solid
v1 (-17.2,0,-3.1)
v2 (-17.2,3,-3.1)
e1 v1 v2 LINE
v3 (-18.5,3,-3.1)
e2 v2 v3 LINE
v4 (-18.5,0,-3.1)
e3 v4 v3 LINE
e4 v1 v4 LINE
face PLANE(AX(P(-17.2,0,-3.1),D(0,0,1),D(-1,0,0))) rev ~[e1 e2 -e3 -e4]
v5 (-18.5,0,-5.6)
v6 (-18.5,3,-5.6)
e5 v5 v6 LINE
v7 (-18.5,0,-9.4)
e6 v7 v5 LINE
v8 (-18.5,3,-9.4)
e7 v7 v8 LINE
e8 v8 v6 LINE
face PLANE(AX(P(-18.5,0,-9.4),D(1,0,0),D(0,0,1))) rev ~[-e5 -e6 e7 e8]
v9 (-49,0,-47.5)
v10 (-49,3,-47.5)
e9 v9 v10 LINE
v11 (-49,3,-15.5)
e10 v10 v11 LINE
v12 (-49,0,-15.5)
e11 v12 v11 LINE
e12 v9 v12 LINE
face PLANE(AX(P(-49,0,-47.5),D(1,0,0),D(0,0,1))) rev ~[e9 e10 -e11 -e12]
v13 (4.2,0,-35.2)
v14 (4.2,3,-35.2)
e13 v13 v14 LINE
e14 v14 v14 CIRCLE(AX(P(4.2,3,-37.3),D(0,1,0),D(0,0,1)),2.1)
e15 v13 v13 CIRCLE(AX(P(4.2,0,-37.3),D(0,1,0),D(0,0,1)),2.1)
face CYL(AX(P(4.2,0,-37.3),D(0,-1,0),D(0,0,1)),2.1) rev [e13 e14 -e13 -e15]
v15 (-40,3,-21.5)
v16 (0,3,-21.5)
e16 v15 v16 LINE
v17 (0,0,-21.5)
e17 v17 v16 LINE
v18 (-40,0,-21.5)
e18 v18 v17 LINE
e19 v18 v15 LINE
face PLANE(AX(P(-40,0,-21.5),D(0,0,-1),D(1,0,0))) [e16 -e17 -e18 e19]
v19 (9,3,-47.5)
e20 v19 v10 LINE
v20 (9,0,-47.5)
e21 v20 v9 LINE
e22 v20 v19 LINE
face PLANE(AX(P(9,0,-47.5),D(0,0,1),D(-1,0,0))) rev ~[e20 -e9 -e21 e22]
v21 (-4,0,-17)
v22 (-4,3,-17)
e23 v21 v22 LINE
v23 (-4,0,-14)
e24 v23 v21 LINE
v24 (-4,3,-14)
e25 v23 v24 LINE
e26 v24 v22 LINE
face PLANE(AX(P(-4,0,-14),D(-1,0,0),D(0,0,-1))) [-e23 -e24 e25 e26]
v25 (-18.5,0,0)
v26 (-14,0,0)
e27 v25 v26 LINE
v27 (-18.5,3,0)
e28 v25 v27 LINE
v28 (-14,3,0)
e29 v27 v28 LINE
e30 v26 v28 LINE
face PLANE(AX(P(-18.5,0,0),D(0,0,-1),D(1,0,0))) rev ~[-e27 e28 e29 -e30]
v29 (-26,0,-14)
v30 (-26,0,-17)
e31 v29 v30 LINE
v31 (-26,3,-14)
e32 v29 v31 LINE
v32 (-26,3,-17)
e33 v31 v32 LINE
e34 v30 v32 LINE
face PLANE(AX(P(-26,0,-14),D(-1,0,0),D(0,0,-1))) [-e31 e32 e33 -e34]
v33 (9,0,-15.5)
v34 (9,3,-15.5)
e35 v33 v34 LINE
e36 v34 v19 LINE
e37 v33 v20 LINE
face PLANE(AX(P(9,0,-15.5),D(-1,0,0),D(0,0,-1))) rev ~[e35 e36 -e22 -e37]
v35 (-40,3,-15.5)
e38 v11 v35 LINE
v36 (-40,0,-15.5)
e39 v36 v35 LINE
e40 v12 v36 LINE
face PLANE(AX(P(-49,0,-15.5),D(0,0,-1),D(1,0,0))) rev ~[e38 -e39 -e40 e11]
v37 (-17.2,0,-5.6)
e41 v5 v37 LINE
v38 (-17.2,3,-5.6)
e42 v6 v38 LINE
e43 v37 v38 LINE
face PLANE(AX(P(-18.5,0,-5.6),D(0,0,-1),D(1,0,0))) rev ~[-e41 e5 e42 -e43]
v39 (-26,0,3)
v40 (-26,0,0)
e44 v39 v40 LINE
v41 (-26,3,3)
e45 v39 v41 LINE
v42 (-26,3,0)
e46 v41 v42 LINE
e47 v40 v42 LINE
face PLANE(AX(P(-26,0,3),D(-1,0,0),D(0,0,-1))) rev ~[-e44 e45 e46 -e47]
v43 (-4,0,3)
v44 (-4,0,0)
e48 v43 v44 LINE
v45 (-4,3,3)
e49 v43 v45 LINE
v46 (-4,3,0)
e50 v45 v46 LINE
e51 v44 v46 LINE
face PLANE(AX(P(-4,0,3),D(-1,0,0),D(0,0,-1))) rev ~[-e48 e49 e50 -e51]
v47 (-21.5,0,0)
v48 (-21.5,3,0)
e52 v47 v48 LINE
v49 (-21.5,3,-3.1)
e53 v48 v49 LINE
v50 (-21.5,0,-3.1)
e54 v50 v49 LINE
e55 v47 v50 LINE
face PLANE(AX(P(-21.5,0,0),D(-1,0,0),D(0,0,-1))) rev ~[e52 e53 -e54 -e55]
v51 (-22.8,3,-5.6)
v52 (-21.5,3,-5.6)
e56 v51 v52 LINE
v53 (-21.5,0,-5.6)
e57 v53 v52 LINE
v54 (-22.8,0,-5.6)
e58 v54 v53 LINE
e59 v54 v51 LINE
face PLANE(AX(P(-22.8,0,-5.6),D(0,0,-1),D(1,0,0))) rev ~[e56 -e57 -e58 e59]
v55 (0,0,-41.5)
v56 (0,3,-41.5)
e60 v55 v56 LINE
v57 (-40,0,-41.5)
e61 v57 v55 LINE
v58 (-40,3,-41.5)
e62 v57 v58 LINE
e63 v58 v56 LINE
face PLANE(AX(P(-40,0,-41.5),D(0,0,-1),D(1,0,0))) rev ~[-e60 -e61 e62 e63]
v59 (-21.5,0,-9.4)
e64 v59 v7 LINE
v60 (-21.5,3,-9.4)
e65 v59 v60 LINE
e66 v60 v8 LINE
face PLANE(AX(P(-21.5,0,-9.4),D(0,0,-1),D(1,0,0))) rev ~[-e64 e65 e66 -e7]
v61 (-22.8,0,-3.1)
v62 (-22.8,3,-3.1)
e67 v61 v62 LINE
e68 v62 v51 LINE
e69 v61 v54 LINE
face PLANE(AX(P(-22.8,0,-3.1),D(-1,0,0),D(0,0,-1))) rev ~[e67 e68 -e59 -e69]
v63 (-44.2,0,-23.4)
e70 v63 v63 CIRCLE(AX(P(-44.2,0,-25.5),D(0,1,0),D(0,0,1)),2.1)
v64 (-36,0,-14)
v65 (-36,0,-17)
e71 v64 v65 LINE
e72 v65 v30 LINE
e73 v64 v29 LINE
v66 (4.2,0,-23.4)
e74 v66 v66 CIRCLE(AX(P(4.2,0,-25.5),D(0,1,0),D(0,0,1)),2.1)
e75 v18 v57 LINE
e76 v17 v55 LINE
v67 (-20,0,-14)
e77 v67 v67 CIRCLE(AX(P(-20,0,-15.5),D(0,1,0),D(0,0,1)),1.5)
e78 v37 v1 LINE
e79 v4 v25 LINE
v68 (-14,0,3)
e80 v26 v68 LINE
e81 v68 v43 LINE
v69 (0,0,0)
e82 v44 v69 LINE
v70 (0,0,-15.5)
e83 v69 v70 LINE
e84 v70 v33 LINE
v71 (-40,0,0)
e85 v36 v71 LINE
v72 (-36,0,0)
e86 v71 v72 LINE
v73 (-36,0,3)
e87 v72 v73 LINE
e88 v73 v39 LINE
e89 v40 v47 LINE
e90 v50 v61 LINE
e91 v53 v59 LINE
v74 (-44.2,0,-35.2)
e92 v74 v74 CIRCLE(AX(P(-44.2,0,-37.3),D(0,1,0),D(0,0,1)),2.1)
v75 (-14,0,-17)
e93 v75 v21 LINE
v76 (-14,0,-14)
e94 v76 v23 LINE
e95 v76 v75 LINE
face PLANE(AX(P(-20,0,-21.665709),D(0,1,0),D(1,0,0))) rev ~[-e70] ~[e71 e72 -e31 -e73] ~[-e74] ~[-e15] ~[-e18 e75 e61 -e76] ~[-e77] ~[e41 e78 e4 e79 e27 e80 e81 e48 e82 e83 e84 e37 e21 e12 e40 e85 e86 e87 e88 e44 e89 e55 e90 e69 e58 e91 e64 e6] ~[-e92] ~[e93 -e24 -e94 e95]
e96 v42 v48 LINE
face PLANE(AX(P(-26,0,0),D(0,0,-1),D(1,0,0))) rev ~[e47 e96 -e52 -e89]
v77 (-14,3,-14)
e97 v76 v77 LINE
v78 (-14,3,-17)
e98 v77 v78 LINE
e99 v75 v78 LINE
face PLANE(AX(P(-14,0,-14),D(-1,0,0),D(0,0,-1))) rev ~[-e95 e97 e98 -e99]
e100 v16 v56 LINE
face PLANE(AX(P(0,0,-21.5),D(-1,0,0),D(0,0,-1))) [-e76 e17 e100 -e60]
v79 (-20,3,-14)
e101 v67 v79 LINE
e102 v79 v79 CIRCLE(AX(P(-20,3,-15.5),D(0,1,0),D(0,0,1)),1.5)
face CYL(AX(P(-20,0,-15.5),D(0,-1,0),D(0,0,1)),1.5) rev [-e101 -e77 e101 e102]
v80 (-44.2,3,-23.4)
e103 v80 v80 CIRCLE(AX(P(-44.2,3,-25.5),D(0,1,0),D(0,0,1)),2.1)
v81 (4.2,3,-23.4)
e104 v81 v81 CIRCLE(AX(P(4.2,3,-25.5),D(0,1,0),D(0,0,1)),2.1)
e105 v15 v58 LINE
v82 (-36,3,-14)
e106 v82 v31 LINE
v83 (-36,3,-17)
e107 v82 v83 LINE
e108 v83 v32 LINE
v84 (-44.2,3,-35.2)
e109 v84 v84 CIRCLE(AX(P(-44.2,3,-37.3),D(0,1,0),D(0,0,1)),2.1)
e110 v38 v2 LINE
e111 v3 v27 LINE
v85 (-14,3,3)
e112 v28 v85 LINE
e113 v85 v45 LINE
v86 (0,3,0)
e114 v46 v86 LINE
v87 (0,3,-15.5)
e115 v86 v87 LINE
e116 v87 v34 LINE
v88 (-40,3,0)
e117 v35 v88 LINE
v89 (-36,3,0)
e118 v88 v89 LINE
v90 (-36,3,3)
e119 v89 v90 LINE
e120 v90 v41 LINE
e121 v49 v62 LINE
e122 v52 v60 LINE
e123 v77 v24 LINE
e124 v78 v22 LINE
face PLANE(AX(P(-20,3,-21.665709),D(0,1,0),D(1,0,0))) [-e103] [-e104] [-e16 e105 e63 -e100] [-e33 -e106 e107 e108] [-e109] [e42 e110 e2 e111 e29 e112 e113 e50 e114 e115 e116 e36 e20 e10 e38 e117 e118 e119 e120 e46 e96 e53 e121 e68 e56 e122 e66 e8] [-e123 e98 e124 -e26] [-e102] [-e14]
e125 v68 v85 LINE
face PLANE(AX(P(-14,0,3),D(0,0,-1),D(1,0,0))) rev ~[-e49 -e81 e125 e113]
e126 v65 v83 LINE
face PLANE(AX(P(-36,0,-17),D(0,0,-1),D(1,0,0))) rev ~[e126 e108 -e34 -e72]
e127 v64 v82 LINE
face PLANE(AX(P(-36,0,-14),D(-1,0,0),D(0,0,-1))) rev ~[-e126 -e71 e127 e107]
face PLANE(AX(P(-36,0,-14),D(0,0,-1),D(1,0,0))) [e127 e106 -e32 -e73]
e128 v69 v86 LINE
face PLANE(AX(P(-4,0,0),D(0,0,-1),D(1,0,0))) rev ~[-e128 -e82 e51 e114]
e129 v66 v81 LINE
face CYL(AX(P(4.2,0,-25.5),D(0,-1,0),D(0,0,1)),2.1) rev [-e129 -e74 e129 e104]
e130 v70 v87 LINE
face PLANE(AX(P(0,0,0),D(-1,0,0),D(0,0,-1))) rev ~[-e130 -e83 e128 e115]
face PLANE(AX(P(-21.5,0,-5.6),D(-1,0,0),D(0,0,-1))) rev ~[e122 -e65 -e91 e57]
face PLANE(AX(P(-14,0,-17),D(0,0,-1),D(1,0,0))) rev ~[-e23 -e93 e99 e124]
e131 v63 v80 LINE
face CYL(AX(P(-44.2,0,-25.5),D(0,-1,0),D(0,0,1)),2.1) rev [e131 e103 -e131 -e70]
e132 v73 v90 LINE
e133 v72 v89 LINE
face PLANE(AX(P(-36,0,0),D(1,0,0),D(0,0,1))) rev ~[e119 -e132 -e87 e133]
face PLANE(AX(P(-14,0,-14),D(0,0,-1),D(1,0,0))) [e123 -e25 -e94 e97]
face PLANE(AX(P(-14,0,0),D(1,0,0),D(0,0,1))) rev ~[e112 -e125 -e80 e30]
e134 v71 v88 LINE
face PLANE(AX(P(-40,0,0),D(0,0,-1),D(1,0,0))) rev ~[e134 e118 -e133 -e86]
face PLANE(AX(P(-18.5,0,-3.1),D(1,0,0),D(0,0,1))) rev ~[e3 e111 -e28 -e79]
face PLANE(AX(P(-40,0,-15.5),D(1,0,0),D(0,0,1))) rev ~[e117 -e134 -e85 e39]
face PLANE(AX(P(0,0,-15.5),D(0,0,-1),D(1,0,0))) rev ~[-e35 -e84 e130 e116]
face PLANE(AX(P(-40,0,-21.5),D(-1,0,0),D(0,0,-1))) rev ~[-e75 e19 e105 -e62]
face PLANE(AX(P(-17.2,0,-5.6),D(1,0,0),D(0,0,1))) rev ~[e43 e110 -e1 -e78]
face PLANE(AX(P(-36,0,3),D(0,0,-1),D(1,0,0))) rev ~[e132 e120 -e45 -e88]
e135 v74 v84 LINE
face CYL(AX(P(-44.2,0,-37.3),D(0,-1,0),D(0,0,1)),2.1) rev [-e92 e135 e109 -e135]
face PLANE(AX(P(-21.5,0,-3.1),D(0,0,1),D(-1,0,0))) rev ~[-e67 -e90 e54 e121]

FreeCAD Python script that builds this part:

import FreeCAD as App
import Part
import Sketcher

V = App.Vector

doc = App.newDocument("Part")
params = doc.addObject("Spreadsheet::Sheet", "Params")
for row, (alias, value) in enumerate([
    ("sketch1_diameter", "3 mm"),
    ("sketch1_diameter2", "4.2 mm"),
    ("sketch1_width", "9 mm"),
    ("sketch1_width2", "58 mm"),
    ("sketch1_width3", "4 mm"),
    ("pad1_length", "3 mm"),
], start=1):
    params.set(f"A{row}", alias)
    params.set(f"B{row}", "=" + value)
    params.setAlias(f"B{row}", alias)

body = doc.addObject("PartDesign::Body", "Body")

# Sketch on XZ plane
sketch1 = body.newObject("Sketcher::SketchObject", "Sketch")
sketch1.AttachmentSupport = (doc.getObject("XZ_Plane"), [""])
sketch1.MapMode = "FlatFace"
sketch1.addGeometry([
    Part.LineSegment(V(0, -15.5, 0), V(9, -15.5, 0)),  # 0
    Part.LineSegment(V(9, -15.5, 0), V(9, -47.5, 0)),  # 1
    Part.LineSegment(V(9, -47.5, 0), V(-49, -47.5, 0)),  # 2
    Part.LineSegment(V(-49, -47.5, 0), V(-49, -15.5, 0)),  # 3
    Part.LineSegment(V(-49, -15.5, 0), V(-40, -15.5, 0)),  # 4
    Part.LineSegment(V(-40, -15.5, 0), V(-40, 0, 0)),  # 5
    Part.LineSegment(V(-40, 0, 0), V(-36, 0, 0)),  # 6
    Part.LineSegment(V(-36, 0, 0), V(-36, 3, 0)),  # 7
    Part.LineSegment(V(-36, 3, 0), V(-26, 3, 0)),  # 8
    Part.LineSegment(V(-26, 3, 0), V(-26, 0, 0)),  # 9
    Part.LineSegment(V(-26, 0, 0), V(-21.5, 0, 0)),  # 10
    Part.LineSegment(V(-21.5, 0, 0), V(-21.5, -3.1, 0)),  # 11
    Part.LineSegment(V(-21.5, -3.1, 0), V(-22.8, -3.1, 0)),  # 12
    Part.LineSegment(V(-22.8, -3.1, 0), V(-22.8, -5.6, 0)),  # 13
    Part.LineSegment(V(-22.8, -5.6, 0), V(-21.5, -5.6, 0)),  # 14
    Part.LineSegment(V(-21.5, -5.6, 0), V(-21.5, -9.4, 0)),  # 15
    Part.LineSegment(V(-21.5, -9.4, 0), V(-18.5, -9.4, 0)),  # 16
    Part.LineSegment(V(-18.5, -9.4, 0), V(-18.5, -5.6, 0)),  # 17
    Part.LineSegment(V(-18.5, -5.6, 0), V(-17.2, -5.6, 0)),  # 18
    Part.LineSegment(V(-17.2, -5.6, 0), V(-17.2, -3.1, 0)),  # 19
    Part.LineSegment(V(-17.2, -3.1, 0), V(-18.5, -3.1, 0)),  # 20
    Part.LineSegment(V(-18.5, -3.1, 0), V(-18.5, 0, 0)),  # 21
    Part.LineSegment(V(-18.5, 0, 0), V(-14, 0, 0)),  # 22
    Part.LineSegment(V(-14, 0, 0), V(-14, 3, 0)),  # 23
    Part.LineSegment(V(-14, 3, 0), V(-4, 3, 0)),  # 24
    Part.LineSegment(V(-4, 3, 0), V(-4, 0, 0)),  # 25
    Part.LineSegment(V(-4, 0, 0), V(0, 0, 0)),  # 26
    Part.LineSegment(V(0, 0, 0), V(0, -15.5, 0)),  # 27
    Part.LineSegment(V(-26, -14, 0), V(-36, -14, 0)),  # 28
    Part.LineSegment(V(-36, -14, 0), V(-36, -17, 0)),  # 29
    Part.LineSegment(V(-36, -17, 0), V(-26, -17, 0)),  # 30
    Part.LineSegment(V(-26, -17, 0), V(-26, -14, 0)),  # 31
    Part.Circle(V(-44.2, -25.5, 0), V(0, 0, 1), 2.1),  # 32
    Part.Circle(V(-20, -15.5, 0), V(0, 0, 1), 1.5),  # 33
    Part.LineSegment(V(-4, -14, 0), V(-14, -14, 0)),  # 34
    Part.LineSegment(V(-14, -14, 0), V(-14, -17, 0)),  # 35
    Part.LineSegment(V(-14, -17, 0), V(-4, -17, 0)),  # 36
    Part.LineSegment(V(-4, -17, 0), V(-4, -14, 0)),  # 37
    Part.Circle(V(4.2, -25.5, 0), V(0, 0, 1), 2.1),  # 38
    Part.Circle(V(-44.2, -37.3, 0), V(0, 0, 1), 2.1),  # 39
    Part.LineSegment(V(0, -21.5, 0), V(-40, -21.5, 0)),  # 40
    Part.LineSegment(V(-40, -21.5, 0), V(-40, -41.5, 0)),  # 41
    Part.LineSegment(V(-40, -41.5, 0), V(0, -41.5, 0)),  # 42
    Part.LineSegment(V(0, -41.5, 0), V(0, -21.5, 0)),  # 43
    Part.Circle(V(4.2, -37.3, 0), V(0, 0, 1), 2.1),  # 44
], False)
sketch1.addConstraint([
    Sketcher.Constraint("Coincident", 0, 2, 1, 1),
    Sketcher.Constraint("Coincident", 1, 2, 2, 1),
    Sketcher.Constraint("Coincident", 2, 2, 3, 1),
    Sketcher.Constraint("Coincident", 3, 2, 4, 1),
    Sketcher.Constraint("Coincident", 4, 2, 5, 1),
    Sketcher.Constraint("Coincident", 5, 2, 6, 1),
    Sketcher.Constraint("Coincident", 6, 2, 7, 1),
    Sketcher.Constraint("Coincident", 7, 2, 8, 1),
    Sketcher.Constraint("Coincident", 8, 2, 9, 1),
    Sketcher.Constraint("Coincident", 9, 2, 10, 1),
    Sketcher.Constraint("Coincident", 10, 2, 11, 1),
    Sketcher.Constraint("Coincident", 11, 2, 12, 1),
    Sketcher.Constraint("Coincident", 12, 2, 13, 1),
    Sketcher.Constraint("Coincident", 13, 2, 14, 1),
    Sketcher.Constraint("Coincident", 14, 2, 15, 1),
    Sketcher.Constraint("Coincident", 15, 2, 16, 1),
    Sketcher.Constraint("Coincident", 16, 2, 17, 1),
    Sketcher.Constraint("Coincident", 17, 2, 18, 1),
    Sketcher.Constraint("Coincident", 18, 2, 19, 1),
    Sketcher.Constraint("Coincident", 19, 2, 20, 1),
    Sketcher.Constraint("Coincident", 20, 2, 21, 1),
    Sketcher.Constraint("Coincident", 21, 2, 22, 1),
    Sketcher.Constraint("Coincident", 22, 2, 23, 1),
    Sketcher.Constraint("Coincident", 23, 2, 24, 1),
    Sketcher.Constraint("Coincident", 24, 2, 25, 1),
    Sketcher.Constraint("Coincident", 25, 2, 26, 1),
    Sketcher.Constraint("Coincident", 26, 2, 27, 1),
    Sketcher.Constraint("Coincident", 27, 2, 0, 1),
    Sketcher.Constraint("Coincident", 28, 2, 29, 1),
    Sketcher.Constraint("Coincident", 29, 2, 30, 1),
    Sketcher.Constraint("Coincident", 30, 2, 31, 1),
    Sketcher.Constraint("Coincident", 31, 2, 28, 1),
    Sketcher.Constraint("Coincident", 34, 2, 35, 1),
    Sketcher.Constraint("Coincident", 35, 2, 36, 1),
    Sketcher.Constraint("Coincident", 36, 2, 37, 1),
    Sketcher.Constraint("Coincident", 37, 2, 34, 1),
    Sketcher.Constraint("Coincident", 40, 2, 41, 1),
    Sketcher.Constraint("Coincident", 41, 2, 42, 1),
    Sketcher.Constraint("Coincident", 42, 2, 43, 1),
    Sketcher.Constraint("Coincident", 43, 2, 40, 1),
    Sketcher.Constraint("Horizontal", 0),
    Sketcher.Constraint("Vertical", 1),
    Sketcher.Constraint("Horizontal", 2),
    Sketcher.Constraint("Vertical", 3),
    Sketcher.Constraint("Horizontal", 4),
    Sketcher.Constraint("Vertical", 5),
    Sketcher.Constraint("Horizontal", 6),
    Sketcher.Constraint("Vertical", 7),
    Sketcher.Constraint("Horizontal", 8),
    Sketcher.Constraint("Vertical", 9),
    Sketcher.Constraint("Horizontal", 10),
    Sketcher.Constraint("Vertical", 11),
    Sketcher.Constraint("Horizontal", 12),
    Sketcher.Constraint("Vertical", 13),
    Sketcher.Constraint("Horizontal", 14),
    Sketcher.Constraint("Vertical", 15),
    Sketcher.Constraint("Horizontal", 16),
    Sketcher.Constraint("Vertical", 17),
    Sketcher.Constraint("Horizontal", 18),
    Sketcher.Constraint("Vertical", 19),
    Sketcher.Constraint("Horizontal", 20),
    Sketcher.Constraint("Vertical", 21),
    Sketcher.Constraint("Horizontal", 22),
    Sketcher.Constraint("Vertical", 23),
    Sketcher.Constraint("Horizontal", 24),
    Sketcher.Constraint("Vertical", 25),
    Sketcher.Constraint("Horizontal", 26),
    Sketcher.Constraint("Vertical", 27),
    Sketcher.Constraint("Horizontal", 28),
    Sketcher.Constraint("Vertical", 29),
    Sketcher.Constraint("Horizontal", 30),
    Sketcher.Constraint("Vertical", 31),
    Sketcher.Constraint("Horizontal", 34),
    Sketcher.Constraint("Vertical", 35),
    Sketcher.Constraint("Horizontal", 36),
    Sketcher.Constraint("Vertical", 37),
    Sketcher.Constraint("Horizontal", 40),
    Sketcher.Constraint("Vertical", 41),
    Sketcher.Constraint("Horizontal", 42),
    Sketcher.Constraint("Vertical", 43),
    Sketcher.Constraint("Coincident", 26, 2, -1, 1),
    Sketcher.Constraint("Equal", 32, 38),
    Sketcher.Constraint("Equal", 38, 39),
    Sketcher.Constraint("Equal", 39, 44),
    Sketcher.Constraint("PointOnObject", 5, 2, -1),
    Sketcher.Constraint("PointOnObject", 9, 2, -1),
    Sketcher.Constraint("PointOnObject", 21, 2, -1),
    Sketcher.Constraint("PointOnObject", 42, 2, -2),
    Sketcher.Constraint("Horizontal", 32, 3, 38, 3),
    Sketcher.Constraint("Horizontal", 39, 3, 44, 3),
    Sketcher.Constraint("Horizontal", 33, 3, 0, 2),
    Sketcher.Constraint("Horizontal", 0, 2, 3, 2),
    Sketcher.Constraint("Horizontal", 14, 2, 17, 2),
    Sketcher.Constraint("Horizontal", 12, 2, 19, 2),
    Sketcher.Constraint("Horizontal", 8, 2, 23, 2),
    Sketcher.Constraint("Horizontal", 31, 2, 34, 2),
    Sketcher.Constraint("Horizontal", 30, 2, 35, 2),
    Sketcher.Constraint("Vertical", 32, 3, 39, 3),
    Sketcher.Constraint("Vertical", 38, 3, 44, 3),
    Sketcher.Constraint("Vertical", 11, 2, 14, 2),
    Sketcher.Constraint("Vertical", 17, 2, 20, 2),
    Sketcher.Constraint("Vertical", 7, 2, 28, 2),
    Sketcher.Constraint("Vertical", 9, 2, 30, 2),
    Sketcher.Constraint("Vertical", 23, 2, 34, 2),
    Sketcher.Constraint("Vertical", 25, 2, 36, 2),
    Sketcher.Constraint("Vertical", 5, 2, 40, 2),
    Sketcher.Constraint("Equal", 0, 4),
    Sketcher.Constraint("Equal", 14, 18),
    Sketcher.Constraint("Equal", 10, 22),
    Sketcher.Constraint("Equal", 8, 24),
    Sketcher.Constraint("Equal", 6, 26),
    Sketcher.Constraint("Equal", 16, 7),
    Sketcher.Constraint("Equal", 25, 29),
    Sketcher.Constraint("Diameter", 33, 3.0),
    Sketcher.Constraint("Diameter", 32, 4.2),
    Sketcher.Constraint("DistanceX", 0, 1, 0, 2, 9.0),
    Sketcher.Constraint("DistanceX", 2, 2, 2, 1, 58.0),
    Sketcher.Constraint("DistanceX", 6, 1, 6, 2, 4.0),
    Sketcher.Constraint("DistanceX", 8, 1, 8, 2, 10.0),
    Sketcher.Constraint("DistanceX", 16, 1, 16, 2, 3.0),
    Sketcher.Constraint("DistanceY", 1, 2, 1, 1, 32.0),
    Sketcher.Constraint("DistanceY", 41, 2, 41, 1, 20.0),
    Sketcher.Constraint("DistanceX", 12, 2, 12, 1, 1.3),
    Sketcher.Constraint("DistanceY", 5, 1, 5, 2, 15.5),
    Sketcher.Constraint("DistanceY", 11, 2, 11, 1, 3.1),
    Sketcher.Constraint("DistanceY", 13, 2, 13, 1, 2.5),
    Sketcher.Constraint("DistanceY", 15, 2, 15, 1, 3.8),
    Sketcher.Constraint("DistanceX", 33, 3, -1, 1, 20.0),
    Sketcher.Constraint("DistanceY", 28, 2, -1, 1, 14.0),
    Sketcher.Constraint("DistanceY", 32, 3, 33, 3, 10.0),
    Sketcher.Constraint("DistanceY", 32, 3, 40, 2, 4.0),
    Sketcher.Constraint("DistanceX", 32, 3, -1, 1, 44.2),
    Sketcher.Constraint("DistanceX", -1, 1, 38, 3, 4.2),
    Sketcher.Constraint("DistanceY", 39, 3, -1, 1, 37.3),
])
sketch1.setExpression("Constraints[113]", "Params.sketch1_diameter")
sketch1.setExpression("Constraints[114]", "Params.sketch1_diameter2")
sketch1.setExpression("Constraints[115]", "Params.sketch1_width")
sketch1.setExpression("Constraints[116]", "Params.sketch1_width2")
sketch1.setExpression("Constraints[117]", "Params.sketch1_width3")
pad1 = body.newObject("PartDesign::Pad", "Pad")
pad1.Profile = sketch1
pad1.setExpression("Length", "Params.pad1_length")
pad1.Reversed = True

doc.recompute()
